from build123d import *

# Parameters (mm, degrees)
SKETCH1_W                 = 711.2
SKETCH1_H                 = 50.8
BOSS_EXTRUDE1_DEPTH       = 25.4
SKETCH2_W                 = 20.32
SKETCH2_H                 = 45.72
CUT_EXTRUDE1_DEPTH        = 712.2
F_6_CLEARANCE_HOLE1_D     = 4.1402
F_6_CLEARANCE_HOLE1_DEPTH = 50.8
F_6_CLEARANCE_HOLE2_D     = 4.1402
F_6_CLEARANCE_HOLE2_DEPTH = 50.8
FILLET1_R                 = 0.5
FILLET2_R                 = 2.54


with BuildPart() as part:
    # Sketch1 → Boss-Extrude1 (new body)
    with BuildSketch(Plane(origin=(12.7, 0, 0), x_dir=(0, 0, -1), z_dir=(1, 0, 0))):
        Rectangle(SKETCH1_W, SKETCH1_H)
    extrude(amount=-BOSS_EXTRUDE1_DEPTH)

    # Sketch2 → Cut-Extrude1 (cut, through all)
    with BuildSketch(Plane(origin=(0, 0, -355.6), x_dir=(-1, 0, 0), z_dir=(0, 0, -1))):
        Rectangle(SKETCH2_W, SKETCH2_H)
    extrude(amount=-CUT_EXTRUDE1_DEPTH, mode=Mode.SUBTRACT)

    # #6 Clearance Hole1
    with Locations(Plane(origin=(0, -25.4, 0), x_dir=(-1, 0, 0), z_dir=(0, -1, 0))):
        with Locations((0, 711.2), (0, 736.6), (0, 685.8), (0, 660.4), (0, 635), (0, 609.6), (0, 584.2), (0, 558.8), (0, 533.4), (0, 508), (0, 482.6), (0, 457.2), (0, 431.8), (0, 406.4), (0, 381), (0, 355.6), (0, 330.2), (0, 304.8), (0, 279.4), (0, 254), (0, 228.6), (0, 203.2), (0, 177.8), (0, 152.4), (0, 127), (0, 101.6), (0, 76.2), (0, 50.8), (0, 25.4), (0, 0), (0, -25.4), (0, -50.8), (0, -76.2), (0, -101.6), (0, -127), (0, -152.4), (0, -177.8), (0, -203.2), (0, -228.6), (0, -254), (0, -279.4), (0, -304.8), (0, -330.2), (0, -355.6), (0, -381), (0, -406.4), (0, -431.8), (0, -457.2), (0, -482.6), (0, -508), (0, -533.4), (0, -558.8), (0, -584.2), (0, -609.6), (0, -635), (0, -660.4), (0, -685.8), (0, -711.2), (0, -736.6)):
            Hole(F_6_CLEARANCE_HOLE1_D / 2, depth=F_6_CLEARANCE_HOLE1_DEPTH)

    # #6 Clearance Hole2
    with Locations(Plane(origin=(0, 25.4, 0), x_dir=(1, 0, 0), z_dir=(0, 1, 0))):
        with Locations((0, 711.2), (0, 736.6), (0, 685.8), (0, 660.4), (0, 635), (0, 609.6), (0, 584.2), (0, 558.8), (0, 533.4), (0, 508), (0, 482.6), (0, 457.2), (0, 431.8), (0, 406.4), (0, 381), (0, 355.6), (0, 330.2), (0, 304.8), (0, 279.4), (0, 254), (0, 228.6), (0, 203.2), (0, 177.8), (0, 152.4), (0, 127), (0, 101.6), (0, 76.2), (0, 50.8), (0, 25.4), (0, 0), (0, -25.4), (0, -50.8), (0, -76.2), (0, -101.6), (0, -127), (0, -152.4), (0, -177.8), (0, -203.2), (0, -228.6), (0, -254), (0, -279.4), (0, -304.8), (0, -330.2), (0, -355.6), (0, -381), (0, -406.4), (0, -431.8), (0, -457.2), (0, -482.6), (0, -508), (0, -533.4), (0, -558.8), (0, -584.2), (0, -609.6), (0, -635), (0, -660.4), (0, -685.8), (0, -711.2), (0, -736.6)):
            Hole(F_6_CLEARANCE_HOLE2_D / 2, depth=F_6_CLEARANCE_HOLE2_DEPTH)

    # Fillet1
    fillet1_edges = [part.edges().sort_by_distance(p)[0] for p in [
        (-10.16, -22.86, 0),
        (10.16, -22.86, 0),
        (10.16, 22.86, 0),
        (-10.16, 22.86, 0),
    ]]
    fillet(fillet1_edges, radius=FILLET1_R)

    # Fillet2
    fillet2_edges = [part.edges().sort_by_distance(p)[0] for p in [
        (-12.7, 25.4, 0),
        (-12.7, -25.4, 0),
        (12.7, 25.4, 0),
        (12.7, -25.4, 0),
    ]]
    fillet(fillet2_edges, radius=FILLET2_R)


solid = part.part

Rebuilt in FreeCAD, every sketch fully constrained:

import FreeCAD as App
import Part
import Sketcher
Q = App.Units.Quantity


def edges_at(feature, points):
    """Names of the edges that pass closest to the given points."""
    edges = feature.Shape.Edges
    near = lambda p: min(range(len(edges)), key=lambda i: edges[i].distToShape(Part.Vertex(*p))[0])
    return sorted({f"Edge{near(p) + 1}" for p in points})


def add_polygon(sketch, points):
    """Adds a closed chain of lines whose ends are joined by coincident constraints."""
    first, n = sketch.GeometryCount, len(points)
    for a, b in zip(points, points[1:] + points[:1]):
        sketch.addGeometry(Part.LineSegment(App.Vector(*a, 0), App.Vector(*b, 0)), False)
    for i in range(n):
        sketch.addConstraint(Sketcher.Constraint("Coincident", first + i, 2, first + (i + 1) % n, 1))

doc = App.newDocument("Part")
body = doc.addObject("PartDesign::Body", "Body")

sketch1 = doc.addObject("Sketcher::SketchObject", "Sketch")
body.addObject(sketch1)
sketch1.AttachmentSupport = (doc.YZ_Plane, [""])
sketch1.MapMode = "FlatFace"
sketch1.AttachmentOffset = App.Placement(App.Vector(0, 0, 0.5 * 25.4), App.Rotation())
add_polygon(sketch1, [(25.4, 355.6), (-25.4, 355.6), (-25.4, -355.6), (25.4, -355.6)])
sketch1.addConstraint(Sketcher.Constraint("Horizontal", 0))
sketch1.addConstraint(Sketcher.Constraint("Vertical", 1))
sketch1.addConstraint(Sketcher.Constraint("Horizontal", 2))
sketch1.addConstraint(Sketcher.Constraint("Vertical", 3))
sketch1.addConstraint(Sketcher.Constraint("Symmetric", 0, 2, 2, 2, -1, 1))
sketch1.addConstraint(Sketcher.Constraint("DistanceX", 0, 2, 0, 1, Q("2 in")))
sketch1.addConstraint(Sketcher.Constraint("DistanceY", 1, 2, 1, 1, Q("28 in")))
pad1 = doc.addObject("PartDesign::Pad", "Pad")
body.addObject(pad1)
pad1.Profile = sketch1
pad1.Length = Q("1 in")
pad1.Reversed = True

sketch2 = doc.addObject("Sketcher::SketchObject", "Sketch001")
body.addObject(sketch2)
sketch2.AttachmentSupport = (doc.XY_Plane, [""])
sketch2.MapMode = "FlatFace"
sketch2.AttachmentOffset = App.Placement(App.Vector(0, 0, -14 * 25.4), App.Rotation())
add_polygon(sketch2, [(10.16, 22.86), (10.16, -22.86), (-10.16, -22.86), (-10.16, 22.86)])
sketch2.addConstraint(Sketcher.Constraint("Vertical", 0))
sketch2.addConstraint(Sketcher.Constraint("Horizontal", 1))
sketch2.addConstraint(Sketcher.Constraint("Vertical", 2))
sketch2.addConstraint(Sketcher.Constraint("Horizontal", 3))
sketch2.addConstraint(Sketcher.Constraint("Symmetric", 0, 2, 2, 2, -1, 1))
sketch2.addConstraint(Sketcher.Constraint("DistanceX", 1, 2, 1, 1, Q("0.8 in")))
sketch2.addConstraint(Sketcher.Constraint("DistanceY", 0, 2, 0, 1, Q("1.8 in")))
pocket1 = doc.addObject("PartDesign::Pocket", "Pocket")
body.addObject(pocket1)
pocket1.Profile = sketch2
pocket1.Type = "ThroughAll"
pocket1.Reversed = True

sketch3 = doc.addObject("Sketcher::SketchObject", "Sketch002")
body.addObject(sketch3)
sketch3.AttachmentSupport = (doc.XZ_Plane, [""])
sketch3.MapMode = "FlatFace"
sketch3.AttachmentOffset = App.Placement(App.Vector(0, 0, 1 * 25.4), App.Rotation())
sketch3.addGeometry(Part.Circle(App.Vector(0, -711.2, 0), App.Vector(0, 0, 1), 2.0701), False)
sketch3.addGeometry(Part.Circle(App.Vector(0, -736.6, 0), App.Vector(0, 0, 1), 2.0701), False)
sketch3.addGeometry(Part.Circle(App.Vector(0, -685.8, 0), App.Vector(0, 0, 1), 2.0701), False)
sketch3.addGeometry(Part.Circle(App.Vector(0, -660.4, 0), App.Vector(0, 0, 1), 2.0701), False)
sketch3.addGeometry(Part.Circle(App.Vector(0, -635, 0), App.Vector(0, 0, 1), 2.0701), False)
sketch3.addGeometry(Part.Circle(App.Vector(0, -609.6, 0), App.Vector(0, 0, 1), 2.0701), False)
sketch3.addGeometry(Part.Circle(App.Vector(0, -584.2, 0), App.Vector(0, 0, 1), 2.0701), False)
sketch3.addGeometry(Part.Circle(App.Vector(0, -558.8, 0), App.Vector(0, 0, 1), 2.0701), False)
sketch3.addGeometry(Part.Circle(App.Vector(0, -533.4, 0), App.Vector(0, 0, 1), 2.0701), False)
sketch3.addGeometry(Part.Circle(App.Vector(0, -508, 0), App.Vector(0, 0, 1), 2.0701), False)
sketch3.addGeometry(Part.Circle(App.Vector(0, -482.6, 0), App.Vector(0, 0, 1), 2.0701), False)
sketch3.addGeometry(Part.Circle(App.Vector(0, -457.2, 0), App.Vector(0, 0, 1), 2.0701), False)
sketch3.addGeometry(Part.Circle(App.Vector(0, -431.8, 0), App.Vector(0, 0, 1), 2.0701), False)
sketch3.addGeometry(Part.Circle(App.Vector(0, -406.4, 0), App.Vector(0, 0, 1), 2.0701), False)
sketch3.addGeometry(Part.Circle(App.Vector(0, -381, 0), App.Vector(0, 0, 1), 2.0701), False)
sketch3.addGeometry(Part.Circle(App.Vector(0, -355.6, 0), App.Vector(0, 0, 1), 2.0701), False)
sketch3.addGeometry(Part.Circle(App.Vector(0, -330.2, 0), App.Vector(0, 0, 1), 2.0701), False)
sketch3.addGeometry(Part.Circle(App.Vector(0, -304.8, 0), App.Vector(0, 0, 1), 2.0701), False)
sketch3.addGeometry(Part.Circle(App.Vector(0, -279.4, 0), App.Vector(0, 0, 1), 2.0701), False)
sketch3.addGeometry(Part.Circle(App.Vector(0, -254, 0), App.Vector(0, 0, 1), 2.0701), False)
sketch3.addGeometry(Part.Circle(App.Vector(0, -228.6, 0), App.Vector(0, 0, 1), 2.0701), False)
sketch3.addGeometry(Part.Circle(App.Vector(0, -203.2, 0), App.Vector(0, 0, 1), 2.0701), False)
sketch3.addGeometry(Part.Circle(App.Vector(0, -177.8, 0), App.Vector(0, 0, 1), 2.0701), False)
sketch3.addGeometry(Part.Circle(App.Vector(0, -152.4, 0), App.Vector(0, 0, 1), 2.0701), False)
sketch3.addGeometry(Part.Circle(App.Vector(0, -127, 0), App.Vector(0, 0, 1), 2.0701), False)
sketch3.addGeometry(Part.Circle(App.Vector(0, -101.6, 0), App.Vector(0, 0, 1), 2.0701), False)
sketch3.addGeometry(Part.Circle(App.Vector(0, -76.2, 0), App.Vector(0, 0, 1), 2.0701), False)
sketch3.addGeometry(Part.Circle(App.Vector(0, -50.8, 0), App.Vector(0, 0, 1), 2.0701), False)
sketch3.addGeometry(Part.Circle(App.Vector(0, -25.4, 0), App.Vector(0, 0, 1), 2.0701), False)
sketch3.addGeometry(Part.Circle(App.Vector(0, 0, 0), App.Vector(0, 0, 1), 2.0701), False)
sketch3.addGeometry(Part.Circle(App.Vector(0, 25.4, 0), App.Vector(0, 0, 1), 2.0701), False)
sketch3.addGeometry(Part.Circle(App.Vector(0, 50.8, 0), App.Vector(0, 0, 1), 2.0701), False)
sketch3.addGeometry(Part.Circle(App.Vector(0, 76.2, 0), App.Vector(0, 0, 1), 2.0701), False)
sketch3.addGeometry(Part.Circle(App.Vector(0, 101.6, 0), App.Vector(0, 0, 1), 2.0701), False)
sketch3.addGeometry(Part.Circle(App.Vector(0, 127, 0), App.Vector(0, 0, 1), 2.0701), False)
sketch3.addGeometry(Part.Circle(App.Vector(0, 152.4, 0), App.Vector(0, 0, 1), 2.0701), False)
sketch3.addGeometry(Part.Circle(App.Vector(0, 177.8, 0), App.Vector(0, 0, 1), 2.0701), False)
sketch3.addGeometry(Part.Circle(App.Vector(0, 203.2, 0), App.Vector(0, 0, 1), 2.0701), False)
sketch3.addGeometry(Part.Circle(App.Vector(0, 228.6, 0), App.Vector(0, 0, 1), 2.0701), False)
sketch3.addGeometry(Part.Circle(App.Vector(0, 254, 0), App.Vector(0, 0, 1), 2.0701), False)
sketch3.addGeometry(Part.Circle(App.Vector(0, 279.4, 0), App.Vector(0, 0, 1), 2.0701), False)
sketch3.addGeometry(Part.Circle(App.Vector(0, 304.8, 0), App.Vector(0, 0, 1), 2.0701), False)
sketch3.addGeometry(Part.Circle(App.Vector(0, 330.2, 0), App.Vector(0, 0, 1), 2.0701), False)
sketch3.addGeometry(Part.Circle(App.Vector(0, 355.6, 0), App.Vector(0, 0, 1), 2.0701), False)
sketch3.addGeometry(Part.Circle(App.Vector(0, 381, 0), App.Vector(0, 0, 1), 2.0701), False)
sketch3.addGeometry(Part.Circle(App.Vector(0, 406.4, 0), App.Vector(0, 0, 1), 2.0701), False)
sketch3.addGeometry(Part.Circle(App.Vector(0, 431.8, 0), App.Vector(0, 0, 1), 2.0701), False)
sketch3.addGeometry(Part.Circle(App.Vector(0, 457.2, 0), App.Vector(0, 0, 1), 2.0701), False)
sketch3.addGeometry(Part.Circle(App.Vector(0, 482.6, 0), App.Vector(0, 0, 1), 2.0701), False)
sketch3.addGeometry(Part.Circle(App.Vector(0, 508, 0), App.Vector(0, 0, 1), 2.0701), False)
sketch3.addGeometry(Part.Circle(App.Vector(0, 533.4, 0), App.Vector(0, 0, 1), 2.0701), False)
sketch3.addGeometry(Part.Circle(App.Vector(0, 558.8, 0), App.Vector(0, 0, 1), 2.0701), False)
sketch3.addGeometry(Part.Circle(App.Vector(0, 584.2, 0), App.Vector(0, 0, 1), 2.0701), False)
sketch3.addGeometry(Part.Circle(App.Vector(0, 609.6, 0), App.Vector(0, 0, 1), 2.0701), False)
sketch3.addGeometry(Part.Circle(App.Vector(0, 635, 0), App.Vector(0, 0, 1), 2.0701), False)
sketch3.addGeometry(Part.Circle(App.Vector(0, 660.4, 0), App.Vector(0, 0, 1), 2.0701), False)
sketch3.addGeometry(Part.Circle(App.Vector(0, 685.8, 0), App.Vector(0, 0, 1), 2.0701), False)
sketch3.addGeometry(Part.Circle(App.Vector(0, 711.2, 0), App.Vector(0, 0, 1), 2.0701), False)
sketch3.addGeometry(Part.Circle(App.Vector(0, 736.6, 0), App.Vector(0, 0, 1), 2.0701), False)
sketch3.addConstraint(Sketcher.Constraint("Coincident", 29, 3, -1, 1))
sketch3.addConstraint(Sketcher.Constraint("Equal", 0, 1))
sketch3.addConstraint(Sketcher.Constraint("Equal", 1, 2))
sketch3.addConstraint(Sketcher.Constraint("Equal", 2, 3))
sketch3.addConstraint(Sketcher.Constraint("Equal", 3, 4))
sketch3.addConstraint(Sketcher.Constraint("Equal", 4, 5))
sketch3.addConstraint(Sketcher.Constraint("Equal", 5, 6))
sketch3.addConstraint(Sketcher.Constraint("Equal", 6, 7))
sketch3.addConstraint(Sketcher.Constraint("Equal", 7, 8))
sketch3.addConstraint(Sketcher.Constraint("Equal", 8, 9))
sketch3.addConstraint(Sketcher.Constraint("Equal", 9, 10))
sketch3.addConstraint(Sketcher.Constraint("Equal", 10, 11))
sketch3.addConstraint(Sketcher.Constraint("Equal", 11, 12))
sketch3.addConstraint(Sketcher.Constraint("Equal", 12, 13))
sketch3.addConstraint(Sketcher.Constraint("Equal", 13, 14))
sketch3.addConstraint(Sketcher.Constraint("Equal", 14, 15))
sketch3.addConstraint(Sketcher.Constraint("Equal", 15, 16))
sketch3.addConstraint(Sketcher.Constraint("Equal", 16, 17))
sketch3.addConstraint(Sketcher.Constraint("Equal", 17, 18))
sketch3.addConstraint(Sketcher.Constraint("Equal", 18, 19))
sketch3.addConstraint(Sketcher.Constraint("Equal", 19, 20))
sketch3.addConstraint(Sketcher.Constraint("Equal", 20, 21))
sketch3.addConstraint(Sketcher.Constraint("Equal", 21, 22))
sketch3.addConstraint(Sketcher.Constraint("Equal", 22, 23))
sketch3.addConstraint(Sketcher.Constraint("Equal", 23, 24))
sketch3.addConstraint(Sketcher.Constraint("Equal", 24, 25))
sketch3.addConstraint(Sketcher.Constraint("Equal", 25, 26))
sketch3.addConstraint(Sketcher.Constraint("Equal", 26, 27))
sketch3.addConstraint(Sketcher.Constraint("Equal", 27, 28))
sketch3.addConstraint(Sketcher.Constraint("Equal", 28, 29))
sketch3.addConstraint(Sketcher.Constraint("Equal", 29, 30))
sketch3.addConstraint(Sketcher.Constraint("Equal", 30, 31))
sketch3.addConstraint(Sketcher.Constraint("Equal", 31, 32))
sketch3.addConstraint(Sketcher.Constraint("Equal", 32, 33))
sketch3.addConstraint(Sketcher.Constraint("Equal", 33, 34))
sketch3.addConstraint(Sketcher.Constraint("Equal", 34, 35))
sketch3.addConstraint(Sketcher.Constraint("Equal", 35, 36))
sketch3.addConstraint(Sketcher.Constraint("Equal", 36, 37))
sketch3.addConstraint(Sketcher.Constraint("Equal", 37, 38))
sketch3.addConstraint(Sketcher.Constraint("Equal", 38, 39))
sketch3.addConstraint(Sketcher.Constraint("Equal", 39, 40))
sketch3.addConstraint(Sketcher.Constraint("Equal", 40, 41))
sketch3.addConstraint(Sketcher.Constraint("Equal", 41, 42))
sketch3.addConstraint(Sketcher.Constraint("Equal", 42, 43))
sketch3.addConstraint(Sketcher.Constraint("Equal", 43, 44))
sketch3.addConstraint(Sketcher.Constraint("Equal", 44, 45))
sketch3.addConstraint(Sketcher.Constraint("Equal", 45, 46))
sketch3.addConstraint(Sketcher.Constraint("Equal", 46, 47))
sketch3.addConstraint(Sketcher.Constraint("Equal", 47, 48))
sketch3.addConstraint(Sketcher.Constraint("Equal", 48, 49))
sketch3.addConstraint(Sketcher.Constraint("Equal", 49, 50))
sketch3.addConstraint(Sketcher.Constraint("Equal", 50, 51))
sketch3.addConstraint(Sketcher.Constraint("Equal", 51, 52))
sketch3.addConstraint(Sketcher.Constraint("Equal", 52, 53))
sketch3.addConstraint(Sketcher.Constraint("Equal", 53, 54))
sketch3.addConstraint(Sketcher.Constraint("Equal", 54, 55))
sketch3.addConstraint(Sketcher.Constraint("Equal", 55, 56))
sketch3.addConstraint(Sketcher.Constraint("Equal", 56, 57))
sketch3.addConstraint(Sketcher.Constraint("Equal", 57, 58))
sketch3.addConstraint(Sketcher.Constraint("Symmetric", 28, 3, 30, 3, -1, 1))
sketch3.addConstraint(Sketcher.Constraint("Symmetric", 27, 3, 31, 3, -1, 1))
sketch3.addConstraint(Sketcher.Constraint("Symmetric", 26, 3, 32, 3, -1, 1))
sketch3.addConstraint(Sketcher.Constraint("Symmetric", 25, 3, 33, 3, -1, 1))
sketch3.addConstraint(Sketcher.Constraint("Symmetric", 24, 3, 34, 3, -1, 1))
sketch3.addConstraint(Sketcher.Constraint("Symmetric", 23, 3, 35, 3, -1, 1))
sketch3.addConstraint(Sketcher.Constraint("Symmetric", 22, 3, 36, 3, -1, 1))
sketch3.addConstraint(Sketcher.Constraint("Symmetric", 21, 3, 37, 3, -1, 1))
sketch3.addConstraint(Sketcher.Constraint("Symmetric", 20, 3, 38, 3, -1, 1))
sketch3.addConstraint(Sketcher.Constraint("Symmetric", 19, 3, 39, 3, -1, 1))
sketch3.addConstraint(Sketcher.Constraint("Symmetric", 18, 3, 40, 3, -1, 1))
sketch3.addConstraint(Sketcher.Constraint("Symmetric", 17, 3, 41, 3, -1, 1))
sketch3.addConstraint(Sketcher.Constraint("Symmetric", 16, 3, 42, 3, -1, 1))
sketch3.addConstraint(Sketcher.Constraint("Symmetric", 15, 3, 43, 3, -1, 1))
sketch3.addConstraint(Sketcher.Constraint("Symmetric", 14, 3, 44, 3, -1, 1))
sketch3.addConstraint(Sketcher.Constraint("Symmetric", 13, 3, 45, 3, -1, 1))
sketch3.addConstraint(Sketcher.Constraint("Symmetric", 12, 3, 46, 3, -1, 1))
sketch3.addConstraint(Sketcher.Constraint("Symmetric", 11, 3, 47, 3, -1, 1))
sketch3.addConstraint(Sketcher.Constraint("Symmetric", 10, 3, 48, 3, -1, 1))
sketch3.addConstraint(Sketcher.Constraint("Symmetric", 9, 3, 49, 3, -1, 1))
sketch3.addConstraint(Sketcher.Constraint("Symmetric", 8, 3, 50, 3, -1, 1))
sketch3.addConstraint(Sketcher.Constraint("Symmetric", 7, 3, 51, 3, -1, 1))
sketch3.addConstraint(Sketcher.Constraint("Symmetric", 6, 3, 52, 3, -1, 1))
sketch3.addConstraint(Sketcher.Constraint("Symmetric", 5, 3, 53, 3, -1, 1))
sketch3.addConstraint(Sketcher.Constraint("Symmetric", 4, 3, 54, 3, -1, 1))
sketch3.addConstraint(Sketcher.Constraint("Symmetric", 3, 3, 55, 3, -1, 1))
sketch3.addConstraint(Sketcher.Constraint("Symmetric", 2, 3, 56, 3, -1, 1))
sketch3.addConstraint(Sketcher.Constraint("Symmetric", 0, 3, 57, 3, -1, 1))
sketch3.addConstraint(Sketcher.Constraint("Symmetric", 1, 3, 58, 3, -1, 1))
sketch3.addConstraint(Sketcher.Constraint("PointOnObject", 0, 3, -2))
sketch3.addConstraint(Sketcher.Constraint("PointOnObject", 1, 3, -2))
sketch3.addConstraint(Sketcher.Constraint("PointOnObject", 2, 3, -2))
sketch3.addConstraint(Sketcher.Constraint("PointOnObject", 3, 3, -2))
sketch3.addConstraint(Sketcher.Constraint("PointOnObject", 4, 3, -2))
sketch3.addConstraint(Sketcher.Constraint("PointOnObject", 5, 3, -2))
sketch3.addConstraint(Sketcher.Constraint("PointOnObject", 6, 3, -2))
sketch3.addConstraint(Sketcher.Constraint("PointOnObject", 7, 3, -2))
sketch3.addConstraint(Sketcher.Constraint("PointOnObject", 8, 3, -2))
sketch3.addConstraint(Sketcher.Constraint("PointOnObject", 9, 3, -2))
sketch3.addConstraint(Sketcher.Constraint("PointOnObject", 10, 3, -2))
sketch3.addConstraint(Sketcher.Constraint("PointOnObject", 11, 3, -2))
sketch3.addConstraint(Sketcher.Constraint("PointOnObject", 12, 3, -2))
sketch3.addConstraint(Sketcher.Constraint("PointOnObject", 13, 3, -2))
sketch3.addConstraint(Sketcher.Constraint("PointOnObject", 14, 3, -2))
sketch3.addConstraint(Sketcher.Constraint("PointOnObject", 15, 3, -2))
sketch3.addConstraint(Sketcher.Constraint("PointOnObject", 16, 3, -2))
sketch3.addConstraint(Sketcher.Constraint("PointOnObject", 17, 3, -2))
sketch3.addConstraint(Sketcher.Constraint("PointOnObject", 18, 3, -2))
sketch3.addConstraint(Sketcher.Constraint("PointOnObject", 19, 3, -2))
sketch3.addConstraint(Sketcher.Constraint("PointOnObject", 20, 3, -2))
sketch3.addConstraint(Sketcher.Constraint("PointOnObject", 21, 3, -2))
sketch3.addConstraint(Sketcher.Constraint("PointOnObject", 22, 3, -2))
sketch3.addConstraint(Sketcher.Constraint("PointOnObject", 23, 3, -2))
sketch3.addConstraint(Sketcher.Constraint("PointOnObject", 24, 3, -2))
sketch3.addConstraint(Sketcher.Constraint("PointOnObject", 25, 3, -2))
sketch3.addConstraint(Sketcher.Constraint("PointOnObject", 26, 3, -2))
sketch3.addConstraint(Sketcher.Constraint("PointOnObject", 27, 3, -2))
sketch3.addConstraint(Sketcher.Constraint("PointOnObject", 28, 3, -2))
sketch3.addConstraint(Sketcher.Constraint("Diameter", 0, Q("0.163 in")))
sketch3.addConstraint(Sketcher.Constraint("DistanceY", 0, 3, -1, 1, Q("28 in")))
sketch3.addConstraint(Sketcher.Constraint("DistanceY", 1, 3, -1, 1, Q("29 in")))
sketch3.addConstraint(Sketcher.Constraint("DistanceY", 2, 3, -1, 1, Q("27 in")))
sketch3.addConstraint(Sketcher.Constraint("DistanceY", 3, 3, -1, 1, Q("26 in")))
sketch3.addConstraint(Sketcher.Constraint("DistanceY", 4, 3, -1, 1, Q("25 in")))
sketch3.addConstraint(Sketcher.Constraint("DistanceY", 5, 3, -1, 1, Q("24 in")))
sketch3.addConstraint(Sketcher.Constraint("DistanceY", 6, 3, -1, 1, Q("23 in")))
sketch3.addConstraint(Sketcher.Constraint("DistanceY", 7, 3, -1, 1, Q("22 in")))
sketch3.addConstraint(Sketcher.Constraint("DistanceY", 8, 3, -1, 1, Q("21 in")))
sketch3.addConstraint(Sketcher.Constraint("DistanceY", 9, 3, -1, 1, Q("20 in")))
sketch3.addConstraint(Sketcher.Constraint("DistanceY", 10, 3, -1, 1, Q("19 in")))
sketch3.addConstraint(Sketcher.Constraint("DistanceY", 11, 3, -1, 1, Q("18 in")))
sketch3.addConstraint(Sketcher.Constraint("DistanceY", 12, 3, -1, 1, Q("17 in")))
sketch3.addConstraint(Sketcher.Constraint("DistanceY", 13, 3, -1, 1, Q("16 in")))
sketch3.addConstraint(Sketcher.Constraint("DistanceY", 14, 3, -1, 1, Q("15 in")))
sketch3.addConstraint(Sketcher.Constraint("DistanceY", 15, 3, -1, 1, Q("14 in")))
sketch3.addConstraint(Sketcher.Constraint("DistanceY", 16, 3, -1, 1, Q("13 in")))
sketch3.addConstraint(Sketcher.Constraint("DistanceY", 17, 3, -1, 1, Q("12 in")))
sketch3.addConstraint(Sketcher.Constraint("DistanceY", 18, 3, -1, 1, Q("11 in")))
sketch3.addConstraint(Sketcher.Constraint("DistanceY", 19, 3, -1, 1, Q("10 in")))
sketch3.addConstraint(Sketcher.Constraint("DistanceY", 20, 3, -1, 1, Q("9 in")))
sketch3.addConstraint(Sketcher.Constraint("DistanceY", 21, 3, -1, 1, Q("8 in")))
sketch3.addConstraint(Sketcher.Constraint("DistanceY", 22, 3, -1, 1, Q("7 in")))
sketch3.addConstraint(Sketcher.Constraint("DistanceY", 23, 3, -1, 1, Q("6 in")))
sketch3.addConstraint(Sketcher.Constraint("DistanceY", 24, 3, -1, 1, Q("5 in")))
sketch3.addConstraint(Sketcher.Constraint("DistanceY", 25, 3, -1, 1, Q("4 in")))
sketch3.addConstraint(Sketcher.Constraint("DistanceY", 26, 3, -1, 1, Q("3 in")))
sketch3.addConstraint(Sketcher.Constraint("DistanceY", 27, 3, -1, 1, Q("2 in")))
sketch3.addConstraint(Sketcher.Constraint("DistanceY", 28, 3, -1, 1, Q("1 in")))
doc.recompute()
hole = doc.addObject("PartDesign::Hole", "Hole")
body.addObject(hole)
hole.Profile = sketch3
hole.ThreadType = "None"
hole.Diameter = Q("0.163 in")
hole.DepthType = "Dimension"
hole.Depth = Q("2 in")
hole.DrillPoint = "Flat"

sketch4 = doc.addObject("Sketcher::SketchObject", "Sketch003")
body.addObject(sketch4)
sketch4.AttachmentSupport = (doc.XZ_Plane, [""])
sketch4.MapMode = "FlatFace"
sketch4.AttachmentOffset = App.Placement(App.Vector(0, 0, -1 * 25.4), App.Rotation())
sketch4.addGeometry(Part.Circle(App.Vector(0, -711.2, 0), App.Vector(0, 0, 1), 2.0701), False)
sketch4.addGeometry(Part.Circle(App.Vector(0, -736.6, 0), App.Vector(0, 0, 1), 2.0701), False)
sketch4.addGeometry(Part.Circle(App.Vector(0, -685.8, 0), App.Vector(0, 0, 1), 2.0701), False)
sketch4.addGeometry(Part.Circle(App.Vector(0, -660.4, 0), App.Vector(0, 0, 1), 2.0701), False)
sketch4.addGeometry(Part.Circle(App.Vector(0, -635, 0), App.Vector(0, 0, 1), 2.0701), False)
sketch4.addGeometry(Part.Circle(App.Vector(0, -609.6, 0), App.Vector(0, 0, 1), 2.0701), False)
sketch4.addGeometry(Part.Circle(App.Vector(0, -584.2, 0), App.Vector(0, 0, 1), 2.0701), False)
sketch4.addGeometry(Part.Circle(App.Vector(0, -558.8, 0), App.Vector(0, 0, 1), 2.0701), False)
sketch4.addGeometry(Part.Circle(App.Vector(0, -533.4, 0), App.Vector(0, 0, 1), 2.0701), False)
sketch4.addGeometry(Part.Circle(App.Vector(0, -508, 0), App.Vector(0, 0, 1), 2.0701), False)
sketch4.addGeometry(Part.Circle(App.Vector(0, -482.6, 0), App.Vector(0, 0, 1), 2.0701), False)
sketch4.addGeometry(Part.Circle(App.Vector(0, -457.2, 0), App.Vector(0, 0, 1), 2.0701), False)
sketch4.addGeometry(Part.Circle(App.Vector(0, -431.8, 0), App.Vector(0, 0, 1), 2.0701), False)
sketch4.addGeometry(Part.Circle(App.Vector(0, -406.4, 0), App.Vector(0, 0, 1), 2.0701), False)
sketch4.addGeometry(Part.Circle(App.Vector(0, -381, 0), App.Vector(0, 0, 1), 2.0701), False)
sketch4.addGeometry(Part.Circle(App.Vector(0, -355.6, 0), App.Vector(0, 0, 1), 2.0701), False)
sketch4.addGeometry(Part.Circle(App.Vector(0, -330.2, 0), App.Vector(0, 0, 1), 2.0701), False)
sketch4.addGeometry(Part.Circle(App.Vector(0, -304.8, 0), App.Vector(0, 0, 1), 2.0701), False)
sketch4.addGeometry(Part.Circle(App.Vector(0, -279.4, 0), App.Vector(0, 0, 1), 2.0701), False)
sketch4.addGeometry(Part.Circle(App.Vector(0, -254, 0), App.Vector(0, 0, 1), 2.0701), False)
sketch4.addGeometry(Part.Circle(App.Vector(0, -228.6, 0), App.Vector(0, 0, 1), 2.0701), False)
sketch4.addGeometry(Part.Circle(App.Vector(0, -203.2, 0), App.Vector(0, 0, 1), 2.0701), False)
sketch4.addGeometry(Part.Circle(App.Vector(0, -177.8, 0), App.Vector(0, 0, 1), 2.0701), False)
sketch4.addGeometry(Part.Circle(App.Vector(0, -152.4, 0), App.Vector(0, 0, 1), 2.0701), False)
sketch4.addGeometry(Part.Circle(App.Vector(0, -127, 0), App.Vector(0, 0, 1), 2.0701), False)
sketch4.addGeometry(Part.Circle(App.Vector(0, -101.6, 0), App.Vector(0, 0, 1), 2.0701), False)
sketch4.addGeometry(Part.Circle(App.Vector(0, -76.2, 0), App.Vector(0, 0, 1), 2.0701), False)
sketch4.addGeometry(Part.Circle(App.Vector(0, -50.8, 0), App.Vector(0, 0, 1), 2.0701), False)
sketch4.addGeometry(Part.Circle(App.Vector(0, -25.4, 0), App.Vector(0, 0, 1), 2.0701), False)
sketch4.addGeometry(Part.Circle(App.Vector(0, 0, 0), App.Vector(0, 0, 1), 2.0701), False)
sketch4.addGeometry(Part.Circle(App.Vector(0, 25.4, 0), App.Vector(0, 0, 1), 2.0701), False)
sketch4.addGeometry(Part.Circle(App.Vector(0, 50.8, 0), App.Vector(0, 0, 1), 2.0701), False)
sketch4.addGeometry(Part.Circle(App.Vector(0, 76.2, 0), App.Vector(0, 0, 1), 2.0701), False)
sketch4.addGeometry(Part.Circle(App.Vector(0, 101.6, 0), App.Vector(0, 0, 1), 2.0701), False)
sketch4.addGeometry(Part.Circle(App.Vector(0, 127, 0), App.Vector(0, 0, 1), 2.0701), False)
sketch4.addGeometry(Part.Circle(App.Vector(0, 152.4, 0), App.Vector(0, 0, 1), 2.0701), False)
sketch4.addGeometry(Part.Circle(App.Vector(0, 177.8, 0), App.Vector(0, 0, 1), 2.0701), False)
sketch4.addGeometry(Part.Circle(App.Vector(0, 203.2, 0), App.Vector(0, 0, 1), 2.0701), False)
sketch4.addGeometry(Part.Circle(App.Vector(0, 228.6, 0), App.Vector(0, 0, 1), 2.0701), False)
sketch4.addGeometry(Part.Circle(App.Vector(0, 254, 0), App.Vector(0, 0, 1), 2.0701), False)
sketch4.addGeometry(Part.Circle(App.Vector(0, 279.4, 0), App.Vector(0, 0, 1), 2.0701), False)
sketch4.addGeometry(Part.Circle(App.Vector(0, 304.8, 0), App.Vector(0, 0, 1), 2.0701), False)
sketch4.addGeometry(Part.Circle(App.Vector(0, 330.2, 0), App.Vector(0, 0, 1), 2.0701), False)
sketch4.addGeometry(Part.Circle(App.Vector(0, 355.6, 0), App.Vector(0, 0, 1), 2.0701), False)
sketch4.addGeometry(Part.Circle(App.Vector(0, 381, 0), App.Vector(0, 0, 1), 2.0701), False)
sketch4.addGeometry(Part.Circle(App.Vector(0, 406.4, 0), App.Vector(0, 0, 1), 2.0701), False)
sketch4.addGeometry(Part.Circle(App.Vector(0, 431.8, 0), App.Vector(0, 0, 1), 2.0701), False)
sketch4.addGeometry(Part.Circle(App.Vector(0, 457.2, 0), App.Vector(0, 0, 1), 2.0701), False)
sketch4.addGeometry(Part.Circle(App.Vector(0, 482.6, 0), App.Vector(0, 0, 1), 2.0701), False)
sketch4.addGeometry(Part.Circle(App.Vector(0, 508, 0), App.Vector(0, 0, 1), 2.0701), False)
sketch4.addGeometry(Part.Circle(App.Vector(0, 533.4, 0), App.Vector(0, 0, 1), 2.0701), False)
sketch4.addGeometry(Part.Circle(App.Vector(0, 558.8, 0), App.Vector(0, 0, 1), 2.0701), False)
sketch4.addGeometry(Part.Circle(App.Vector(0, 584.2, 0), App.Vector(0, 0, 1), 2.0701), False)
sketch4.addGeometry(Part.Circle(App.Vector(0, 609.6, 0), App.Vector(0, 0, 1), 2.0701), False)
sketch4.addGeometry(Part.Circle(App.Vector(0, 635, 0), App.Vector(0, 0, 1), 2.0701), False)
sketch4.addGeometry(Part.Circle(App.Vector(0, 660.4, 0), App.Vector(0, 0, 1), 2.0701), False)
sketch4.addGeometry(Part.Circle(App.Vector(0, 685.8, 0), App.Vector(0, 0, 1), 2.0701), False)
sketch4.addGeometry(Part.Circle(App.Vector(0, 711.2, 0), App.Vector(0, 0, 1), 2.0701), False)
sketch4.addGeometry(Part.Circle(App.Vector(0, 736.6, 0), App.Vector(0, 0, 1), 2.0701), False)
sketch4.addConstraint(Sketcher.Constraint("Coincident", 29, 3, -1, 1))
sketch4.addConstraint(Sketcher.Constraint("Equal", 0, 1))
sketch4.addConstraint(Sketcher.Constraint("Equal", 1, 2))
sketch4.addConstraint(Sketcher.Constraint("Equal", 2, 3))
sketch4.addConstraint(Sketcher.Constraint("Equal", 3, 4))
sketch4.addConstraint(Sketcher.Constraint("Equal", 4, 5))
sketch4.addConstraint(Sketcher.Constraint("Equal", 5, 6))
sketch4.addConstraint(Sketcher.Constraint("Equal", 6, 7))
sketch4.addConstraint(Sketcher.Constraint("Equal", 7, 8))
sketch4.addConstraint(Sketcher.Constraint("Equal", 8, 9))
sketch4.addConstraint(Sketcher.Constraint("Equal", 9, 10))
sketch4.addConstraint(Sketcher.Constraint("Equal", 10, 11))
sketch4.addConstraint(Sketcher.Constraint("Equal", 11, 12))
sketch4.addConstraint(Sketcher.Constraint("Equal", 12, 13))
sketch4.addConstraint(Sketcher.Constraint("Equal", 13, 14))
sketch4.addConstraint(Sketcher.Constraint("Equal", 14, 15))
sketch4.addConstraint(Sketcher.Constraint("Equal", 15, 16))
sketch4.addConstraint(Sketcher.Constraint("Equal", 16, 17))
sketch4.addConstraint(Sketcher.Constraint("Equal", 17, 18))
sketch4.addConstraint(Sketcher.Constraint("Equal", 18, 19))
sketch4.addConstraint(Sketcher.Constraint("Equal", 19, 20))
sketch4.addConstraint(Sketcher.Constraint("Equal", 20, 21))
sketch4.addConstraint(Sketcher.Constraint("Equal", 21, 22))
sketch4.addConstraint(Sketcher.Constraint("Equal", 22, 23))
sketch4.addConstraint(Sketcher.Constraint("Equal", 23, 24))
sketch4.addConstraint(Sketcher.Constraint("Equal", 24, 25))
sketch4.addConstraint(Sketcher.Constraint("Equal", 25, 26))
sketch4.addConstraint(Sketcher.Constraint("Equal", 26, 27))
sketch4.addConstraint(Sketcher.Constraint("Equal", 27, 28))
sketch4.addConstraint(Sketcher.Constraint("Equal", 28, 29))
sketch4.addConstraint(Sketcher.Constraint("Equal", 29, 30))
sketch4.addConstraint(Sketcher.Constraint("Equal", 30, 31))
sketch4.addConstraint(Sketcher.Constraint("Equal", 31, 32))
sketch4.addConstraint(Sketcher.Constraint("Equal", 32, 33))
sketch4.addConstraint(Sketcher.Constraint("Equal", 33, 34))
sketch4.addConstraint(Sketcher.Constraint("Equal", 34, 35))
sketch4.addConstraint(Sketcher.Constraint("Equal", 35, 36))
sketch4.addConstraint(Sketcher.Constraint("Equal", 36, 37))
sketch4.addConstraint(Sketcher.Constraint("Equal", 37, 38))
sketch4.addConstraint(Sketcher.Constraint("Equal", 38, 39))
sketch4.addConstraint(Sketcher.Constraint("Equal", 39, 40))
sketch4.addConstraint(Sketcher.Constraint("Equal", 40, 41))
sketch4.addConstraint(Sketcher.Constraint("Equal", 41, 42))
sketch4.addConstraint(Sketcher.Constraint("Equal", 42, 43))
sketch4.addConstraint(Sketcher.Constraint("Equal", 43, 44))
sketch4.addConstraint(Sketcher.Constraint("Equal", 44, 45))
sketch4.addConstraint(Sketcher.Constraint("Equal", 45, 46))
sketch4.addConstraint(Sketcher.Constraint("Equal", 46, 47))
sketch4.addConstraint(Sketcher.Constraint("Equal", 47, 48))
sketch4.addConstraint(Sketcher.Constraint("Equal", 48, 49))
sketch4.addConstraint(Sketcher.Constraint("Equal", 49, 50))
sketch4.addConstraint(Sketcher.Constraint("Equal", 50, 51))
sketch4.addConstraint(Sketcher.Constraint("Equal", 51, 52))
sketch4.addConstraint(Sketcher.Constraint("Equal", 52, 53))
sketch4.addConstraint(Sketcher.Constraint("Equal", 53, 54))
sketch4.addConstraint(Sketcher.Constraint("Equal", 54, 55))
sketch4.addConstraint(Sketcher.Constraint("Equal", 55, 56))
sketch4.addConstraint(Sketcher.Constraint("Equal", 56, 57))
sketch4.addConstraint(Sketcher.Constraint("Equal", 57, 58))
sketch4.addConstraint(Sketcher.Constraint("Symmetric", 28, 3, 30, 3, -1, 1))
sketch4.addConstraint(Sketcher.Constraint("Symmetric", 27, 3, 31, 3, -1, 1))
sketch4.addConstraint(Sketcher.Constraint("Symmetric", 26, 3, 32, 3, -1, 1))
sketch4.addConstraint(Sketcher.Constraint("Symmetric", 25, 3, 33, 3, -1, 1))
sketch4.addConstraint(Sketcher.Constraint("Symmetric", 24, 3, 34, 3, -1, 1))
sketch4.addConstraint(Sketcher.Constraint("Symmetric", 23, 3, 35, 3, -1, 1))
sketch4.addConstraint(Sketcher.Constraint("Symmetric", 22, 3, 36, 3, -1, 1))
sketch4.addConstraint(Sketcher.Constraint("Symmetric", 21, 3, 37, 3, -1, 1))
sketch4.addConstraint(Sketcher.Constraint("Symmetric", 20, 3, 38, 3, -1, 1))
sketch4.addConstraint(Sketcher.Constraint("Symmetric", 19, 3, 39, 3, -1, 1))
sketch4.addConstraint(Sketcher.Constraint("Symmetric", 18, 3, 40, 3, -1, 1))
sketch4.addConstraint(Sketcher.Constraint("Symmetric", 17, 3, 41, 3, -1, 1))
sketch4.addConstraint(Sketcher.Constraint("Symmetric", 16, 3, 42, 3, -1, 1))
sketch4.addConstraint(Sketcher.Constraint("Symmetric", 15, 3, 43, 3, -1, 1))
sketch4.addConstraint(Sketcher.Constraint("Symmetric", 14, 3, 44, 3, -1, 1))
sketch4.addConstraint(Sketcher.Constraint("Symmetric", 13, 3, 45, 3, -1, 1))
sketch4.addConstraint(Sketcher.Constraint("Symmetric", 12, 3, 46, 3, -1, 1))
sketch4.addConstraint(Sketcher.Constraint("Symmetric", 11, 3, 47, 3, -1, 1))
sketch4.addConstraint(Sketcher.Constraint("Symmetric", 10, 3, 48, 3, -1, 1))
sketch4.addConstraint(Sketcher.Constraint("Symmetric", 9, 3, 49, 3, -1, 1))
sketch4.addConstraint(Sketcher.Constraint("Symmetric", 8, 3, 50, 3, -1, 1))
sketch4.addConstraint(Sketcher.Constraint("Symmetric", 7, 3, 51, 3, -1, 1))
sketch4.addConstraint(Sketcher.Constraint("Symmetric", 6, 3, 52, 3, -1, 1))
sketch4.addConstraint(Sketcher.Constraint("Symmetric", 5, 3, 53, 3, -1, 1))
sketch4.addConstraint(Sketcher.Constraint("Symmetric", 4, 3, 54, 3, -1, 1))
sketch4.addConstraint(Sketcher.Constraint("Symmetric", 3, 3, 55, 3, -1, 1))
sketch4.addConstraint(Sketcher.Constraint("Symmetric", 2, 3, 56, 3, -1, 1))
sketch4.addConstraint(Sketcher.Constraint("Symmetric", 0, 3, 57, 3, -1, 1))
sketch4.addConstraint(Sketcher.Constraint("Symmetric", 1, 3, 58, 3, -1, 1))
sketch4.addConstraint(Sketcher.Constraint("PointOnObject", 0, 3, -2))
sketch4.addConstraint(Sketcher.Constraint("PointOnObject", 1, 3, -2))
sketch4.addConstraint(Sketcher.Constraint("PointOnObject", 2, 3, -2))
sketch4.addConstraint(Sketcher.Constraint("PointOnObject", 3, 3, -2))
sketch4.addConstraint(Sketcher.Constraint("PointOnObject", 4, 3, -2))
sketch4.addConstraint(Sketcher.Constraint("PointOnObject", 5, 3, -2))
sketch4.addConstraint(Sketcher.Constraint("PointOnObject", 6, 3, -2))
sketch4.addConstraint(Sketcher.Constraint("PointOnObject", 7, 3, -2))
sketch4.addConstraint(Sketcher.Constraint("PointOnObject", 8, 3, -2))
sketch4.addConstraint(Sketcher.Constraint("PointOnObject", 9, 3, -2))
sketch4.addConstraint(Sketcher.Constraint("PointOnObject", 10, 3, -2))
sketch4.addConstraint(Sketcher.Constraint("PointOnObject", 11, 3, -2))
sketch4.addConstraint(Sketcher.Constraint("PointOnObject", 12, 3, -2))
sketch4.addConstraint(Sketcher.Constraint("PointOnObject", 13, 3, -2))
sketch4.addConstraint(Sketcher.Constraint("PointOnObject", 14, 3, -2))
sketch4.addConstraint(Sketcher.Constraint("PointOnObject", 15, 3, -2))
sketch4.addConstraint(Sketcher.Constraint("PointOnObject", 16, 3, -2))
sketch4.addConstraint(Sketcher.Constraint("PointOnObject", 17, 3, -2))
sketch4.addConstraint(Sketcher.Constraint("PointOnObject", 18, 3, -2))
sketch4.addConstraint(Sketcher.Constraint("PointOnObject", 19, 3, -2))
sketch4.addConstraint(Sketcher.Constraint("PointOnObject", 20, 3, -2))
sketch4.addConstraint(Sketcher.Constraint("PointOnObject", 21, 3, -2))
sketch4.addConstraint(Sketcher.Constraint("PointOnObject", 22, 3, -2))
sketch4.addConstraint(Sketcher.Constraint("PointOnObject", 23, 3, -2))
sketch4.addConstraint(Sketcher.Constraint("PointOnObject", 24, 3, -2))
sketch4.addConstraint(Sketcher.Constraint("PointOnObject", 25, 3, -2))
sketch4.addConstraint(Sketcher.Constraint("PointOnObject", 26, 3, -2))
sketch4.addConstraint(Sketcher.Constraint("PointOnObject", 27, 3, -2))
sketch4.addConstraint(Sketcher.Constraint("PointOnObject", 28, 3, -2))
sketch4.addConstraint(Sketcher.Constraint("Diameter", 0, Q("0.163 in")))
sketch4.addConstraint(Sketcher.Constraint("DistanceY", 0, 3, -1, 1, Q("28 in")))
sketch4.addConstraint(Sketcher.Constraint("DistanceY", 1, 3, -1, 1, Q("29 in")))
sketch4.addConstraint(Sketcher.Constraint("DistanceY", 2, 3, -1, 1, Q("27 in")))
sketch4.addConstraint(Sketcher.Constraint("DistanceY", 3, 3, -1, 1, Q("26 in")))
sketch4.addConstraint(Sketcher.Constraint("DistanceY", 4, 3, -1, 1, Q("25 in")))
sketch4.addConstraint(Sketcher.Constraint("DistanceY", 5, 3, -1, 1, Q("24 in")))
sketch4.addConstraint(Sketcher.Constraint("DistanceY", 6, 3, -1, 1, Q("23 in")))
sketch4.addConstraint(Sketcher.Constraint("DistanceY", 7, 3, -1, 1, Q("22 in")))
sketch4.addConstraint(Sketcher.Constraint("DistanceY", 8, 3, -1, 1, Q("21 in")))
sketch4.addConstraint(Sketcher.Constraint("DistanceY", 9, 3, -1, 1, Q("20 in")))
sketch4.addConstraint(Sketcher.Constraint("DistanceY", 10, 3, -1, 1, Q("19 in")))
sketch4.addConstraint(Sketcher.Constraint("DistanceY", 11, 3, -1, 1, Q("18 in")))
sketch4.addConstraint(Sketcher.Constraint("DistanceY", 12, 3, -1, 1, Q("17 in")))
sketch4.addConstraint(Sketcher.Constraint("DistanceY", 13, 3, -1, 1, Q("16 in")))
sketch4.addConstraint(Sketcher.Constraint("DistanceY", 14, 3, -1, 1, Q("15 in")))
sketch4.addConstraint(Sketcher.Constraint("DistanceY", 15, 3, -1, 1, Q("14 in")))
sketch4.addConstraint(Sketcher.Constraint("DistanceY", 16, 3, -1, 1, Q("13 in")))
sketch4.addConstraint(Sketcher.Constraint("DistanceY", 17, 3, -1, 1, Q("12 in")))
sketch4.addConstraint(Sketcher.Constraint("DistanceY", 18, 3, -1, 1, Q("11 in")))
sketch4.addConstraint(Sketcher.Constraint("DistanceY", 19, 3, -1, 1, Q("10 in")))
sketch4.addConstraint(Sketcher.Constraint("DistanceY", 20, 3, -1, 1, Q("9 in")))
sketch4.addConstraint(Sketcher.Constraint("DistanceY", 21, 3, -1, 1, Q("8 in")))
sketch4.addConstraint(Sketcher.Constraint("DistanceY", 22, 3, -1, 1, Q("7 in")))
sketch4.addConstraint(Sketcher.Constraint("DistanceY", 23, 3, -1, 1, Q("6 in")))
sketch4.addConstraint(Sketcher.Constraint("DistanceY", 24, 3, -1, 1, Q("5 in")))
sketch4.addConstraint(Sketcher.Constraint("DistanceY", 25, 3, -1, 1, Q("4 in")))
sketch4.addConstraint(Sketcher.Constraint("DistanceY", 26, 3, -1, 1, Q("3 in")))
sketch4.addConstraint(Sketcher.Constraint("DistanceY", 27, 3, -1, 1, Q("2 in")))
sketch4.addConstraint(Sketcher.Constraint("DistanceY", 28, 3, -1, 1, Q("1 in")))
doc.recompute()
hole2 = doc.addObject("PartDesign::Hole", "Hole001")
body.addObject(hole2)
hole2.Profile = sketch4
hole2.ThreadType = "None"
hole2.Diameter = Q("0.163 in")
hole2.DepthType = "Dimension"
hole2.Depth = Q("2 in")
hole2.DrillPoint = "Flat"
hole2.Reversed = True
doc.recompute()

fillet = doc.addObject("PartDesign::Fillet", "Fillet")
body.addObject(fillet)
fillet.Base = (hole2, edges_at(hole2, [
    (-10.16, -22.86, 0),
    (10.16, -22.86, 0),
    (10.16, 22.86, 0),
    (-10.16, 22.86, 0),
]))
fillet.Radius = 0.5
doc.recompute()

fillet2 = doc.addObject("PartDesign::Fillet", "Fillet001")
body.addObject(fillet2)
fillet2.Base = (fillet, edges_at(fillet, [
    (-12.7, 25.4, 0),
    (-12.7, -25.4, 0),
    (12.7, 25.4, 0),
    (12.7, -25.4, 0),
]))
fillet2.Radius = Q("0.1 in")

doc.recompute()
